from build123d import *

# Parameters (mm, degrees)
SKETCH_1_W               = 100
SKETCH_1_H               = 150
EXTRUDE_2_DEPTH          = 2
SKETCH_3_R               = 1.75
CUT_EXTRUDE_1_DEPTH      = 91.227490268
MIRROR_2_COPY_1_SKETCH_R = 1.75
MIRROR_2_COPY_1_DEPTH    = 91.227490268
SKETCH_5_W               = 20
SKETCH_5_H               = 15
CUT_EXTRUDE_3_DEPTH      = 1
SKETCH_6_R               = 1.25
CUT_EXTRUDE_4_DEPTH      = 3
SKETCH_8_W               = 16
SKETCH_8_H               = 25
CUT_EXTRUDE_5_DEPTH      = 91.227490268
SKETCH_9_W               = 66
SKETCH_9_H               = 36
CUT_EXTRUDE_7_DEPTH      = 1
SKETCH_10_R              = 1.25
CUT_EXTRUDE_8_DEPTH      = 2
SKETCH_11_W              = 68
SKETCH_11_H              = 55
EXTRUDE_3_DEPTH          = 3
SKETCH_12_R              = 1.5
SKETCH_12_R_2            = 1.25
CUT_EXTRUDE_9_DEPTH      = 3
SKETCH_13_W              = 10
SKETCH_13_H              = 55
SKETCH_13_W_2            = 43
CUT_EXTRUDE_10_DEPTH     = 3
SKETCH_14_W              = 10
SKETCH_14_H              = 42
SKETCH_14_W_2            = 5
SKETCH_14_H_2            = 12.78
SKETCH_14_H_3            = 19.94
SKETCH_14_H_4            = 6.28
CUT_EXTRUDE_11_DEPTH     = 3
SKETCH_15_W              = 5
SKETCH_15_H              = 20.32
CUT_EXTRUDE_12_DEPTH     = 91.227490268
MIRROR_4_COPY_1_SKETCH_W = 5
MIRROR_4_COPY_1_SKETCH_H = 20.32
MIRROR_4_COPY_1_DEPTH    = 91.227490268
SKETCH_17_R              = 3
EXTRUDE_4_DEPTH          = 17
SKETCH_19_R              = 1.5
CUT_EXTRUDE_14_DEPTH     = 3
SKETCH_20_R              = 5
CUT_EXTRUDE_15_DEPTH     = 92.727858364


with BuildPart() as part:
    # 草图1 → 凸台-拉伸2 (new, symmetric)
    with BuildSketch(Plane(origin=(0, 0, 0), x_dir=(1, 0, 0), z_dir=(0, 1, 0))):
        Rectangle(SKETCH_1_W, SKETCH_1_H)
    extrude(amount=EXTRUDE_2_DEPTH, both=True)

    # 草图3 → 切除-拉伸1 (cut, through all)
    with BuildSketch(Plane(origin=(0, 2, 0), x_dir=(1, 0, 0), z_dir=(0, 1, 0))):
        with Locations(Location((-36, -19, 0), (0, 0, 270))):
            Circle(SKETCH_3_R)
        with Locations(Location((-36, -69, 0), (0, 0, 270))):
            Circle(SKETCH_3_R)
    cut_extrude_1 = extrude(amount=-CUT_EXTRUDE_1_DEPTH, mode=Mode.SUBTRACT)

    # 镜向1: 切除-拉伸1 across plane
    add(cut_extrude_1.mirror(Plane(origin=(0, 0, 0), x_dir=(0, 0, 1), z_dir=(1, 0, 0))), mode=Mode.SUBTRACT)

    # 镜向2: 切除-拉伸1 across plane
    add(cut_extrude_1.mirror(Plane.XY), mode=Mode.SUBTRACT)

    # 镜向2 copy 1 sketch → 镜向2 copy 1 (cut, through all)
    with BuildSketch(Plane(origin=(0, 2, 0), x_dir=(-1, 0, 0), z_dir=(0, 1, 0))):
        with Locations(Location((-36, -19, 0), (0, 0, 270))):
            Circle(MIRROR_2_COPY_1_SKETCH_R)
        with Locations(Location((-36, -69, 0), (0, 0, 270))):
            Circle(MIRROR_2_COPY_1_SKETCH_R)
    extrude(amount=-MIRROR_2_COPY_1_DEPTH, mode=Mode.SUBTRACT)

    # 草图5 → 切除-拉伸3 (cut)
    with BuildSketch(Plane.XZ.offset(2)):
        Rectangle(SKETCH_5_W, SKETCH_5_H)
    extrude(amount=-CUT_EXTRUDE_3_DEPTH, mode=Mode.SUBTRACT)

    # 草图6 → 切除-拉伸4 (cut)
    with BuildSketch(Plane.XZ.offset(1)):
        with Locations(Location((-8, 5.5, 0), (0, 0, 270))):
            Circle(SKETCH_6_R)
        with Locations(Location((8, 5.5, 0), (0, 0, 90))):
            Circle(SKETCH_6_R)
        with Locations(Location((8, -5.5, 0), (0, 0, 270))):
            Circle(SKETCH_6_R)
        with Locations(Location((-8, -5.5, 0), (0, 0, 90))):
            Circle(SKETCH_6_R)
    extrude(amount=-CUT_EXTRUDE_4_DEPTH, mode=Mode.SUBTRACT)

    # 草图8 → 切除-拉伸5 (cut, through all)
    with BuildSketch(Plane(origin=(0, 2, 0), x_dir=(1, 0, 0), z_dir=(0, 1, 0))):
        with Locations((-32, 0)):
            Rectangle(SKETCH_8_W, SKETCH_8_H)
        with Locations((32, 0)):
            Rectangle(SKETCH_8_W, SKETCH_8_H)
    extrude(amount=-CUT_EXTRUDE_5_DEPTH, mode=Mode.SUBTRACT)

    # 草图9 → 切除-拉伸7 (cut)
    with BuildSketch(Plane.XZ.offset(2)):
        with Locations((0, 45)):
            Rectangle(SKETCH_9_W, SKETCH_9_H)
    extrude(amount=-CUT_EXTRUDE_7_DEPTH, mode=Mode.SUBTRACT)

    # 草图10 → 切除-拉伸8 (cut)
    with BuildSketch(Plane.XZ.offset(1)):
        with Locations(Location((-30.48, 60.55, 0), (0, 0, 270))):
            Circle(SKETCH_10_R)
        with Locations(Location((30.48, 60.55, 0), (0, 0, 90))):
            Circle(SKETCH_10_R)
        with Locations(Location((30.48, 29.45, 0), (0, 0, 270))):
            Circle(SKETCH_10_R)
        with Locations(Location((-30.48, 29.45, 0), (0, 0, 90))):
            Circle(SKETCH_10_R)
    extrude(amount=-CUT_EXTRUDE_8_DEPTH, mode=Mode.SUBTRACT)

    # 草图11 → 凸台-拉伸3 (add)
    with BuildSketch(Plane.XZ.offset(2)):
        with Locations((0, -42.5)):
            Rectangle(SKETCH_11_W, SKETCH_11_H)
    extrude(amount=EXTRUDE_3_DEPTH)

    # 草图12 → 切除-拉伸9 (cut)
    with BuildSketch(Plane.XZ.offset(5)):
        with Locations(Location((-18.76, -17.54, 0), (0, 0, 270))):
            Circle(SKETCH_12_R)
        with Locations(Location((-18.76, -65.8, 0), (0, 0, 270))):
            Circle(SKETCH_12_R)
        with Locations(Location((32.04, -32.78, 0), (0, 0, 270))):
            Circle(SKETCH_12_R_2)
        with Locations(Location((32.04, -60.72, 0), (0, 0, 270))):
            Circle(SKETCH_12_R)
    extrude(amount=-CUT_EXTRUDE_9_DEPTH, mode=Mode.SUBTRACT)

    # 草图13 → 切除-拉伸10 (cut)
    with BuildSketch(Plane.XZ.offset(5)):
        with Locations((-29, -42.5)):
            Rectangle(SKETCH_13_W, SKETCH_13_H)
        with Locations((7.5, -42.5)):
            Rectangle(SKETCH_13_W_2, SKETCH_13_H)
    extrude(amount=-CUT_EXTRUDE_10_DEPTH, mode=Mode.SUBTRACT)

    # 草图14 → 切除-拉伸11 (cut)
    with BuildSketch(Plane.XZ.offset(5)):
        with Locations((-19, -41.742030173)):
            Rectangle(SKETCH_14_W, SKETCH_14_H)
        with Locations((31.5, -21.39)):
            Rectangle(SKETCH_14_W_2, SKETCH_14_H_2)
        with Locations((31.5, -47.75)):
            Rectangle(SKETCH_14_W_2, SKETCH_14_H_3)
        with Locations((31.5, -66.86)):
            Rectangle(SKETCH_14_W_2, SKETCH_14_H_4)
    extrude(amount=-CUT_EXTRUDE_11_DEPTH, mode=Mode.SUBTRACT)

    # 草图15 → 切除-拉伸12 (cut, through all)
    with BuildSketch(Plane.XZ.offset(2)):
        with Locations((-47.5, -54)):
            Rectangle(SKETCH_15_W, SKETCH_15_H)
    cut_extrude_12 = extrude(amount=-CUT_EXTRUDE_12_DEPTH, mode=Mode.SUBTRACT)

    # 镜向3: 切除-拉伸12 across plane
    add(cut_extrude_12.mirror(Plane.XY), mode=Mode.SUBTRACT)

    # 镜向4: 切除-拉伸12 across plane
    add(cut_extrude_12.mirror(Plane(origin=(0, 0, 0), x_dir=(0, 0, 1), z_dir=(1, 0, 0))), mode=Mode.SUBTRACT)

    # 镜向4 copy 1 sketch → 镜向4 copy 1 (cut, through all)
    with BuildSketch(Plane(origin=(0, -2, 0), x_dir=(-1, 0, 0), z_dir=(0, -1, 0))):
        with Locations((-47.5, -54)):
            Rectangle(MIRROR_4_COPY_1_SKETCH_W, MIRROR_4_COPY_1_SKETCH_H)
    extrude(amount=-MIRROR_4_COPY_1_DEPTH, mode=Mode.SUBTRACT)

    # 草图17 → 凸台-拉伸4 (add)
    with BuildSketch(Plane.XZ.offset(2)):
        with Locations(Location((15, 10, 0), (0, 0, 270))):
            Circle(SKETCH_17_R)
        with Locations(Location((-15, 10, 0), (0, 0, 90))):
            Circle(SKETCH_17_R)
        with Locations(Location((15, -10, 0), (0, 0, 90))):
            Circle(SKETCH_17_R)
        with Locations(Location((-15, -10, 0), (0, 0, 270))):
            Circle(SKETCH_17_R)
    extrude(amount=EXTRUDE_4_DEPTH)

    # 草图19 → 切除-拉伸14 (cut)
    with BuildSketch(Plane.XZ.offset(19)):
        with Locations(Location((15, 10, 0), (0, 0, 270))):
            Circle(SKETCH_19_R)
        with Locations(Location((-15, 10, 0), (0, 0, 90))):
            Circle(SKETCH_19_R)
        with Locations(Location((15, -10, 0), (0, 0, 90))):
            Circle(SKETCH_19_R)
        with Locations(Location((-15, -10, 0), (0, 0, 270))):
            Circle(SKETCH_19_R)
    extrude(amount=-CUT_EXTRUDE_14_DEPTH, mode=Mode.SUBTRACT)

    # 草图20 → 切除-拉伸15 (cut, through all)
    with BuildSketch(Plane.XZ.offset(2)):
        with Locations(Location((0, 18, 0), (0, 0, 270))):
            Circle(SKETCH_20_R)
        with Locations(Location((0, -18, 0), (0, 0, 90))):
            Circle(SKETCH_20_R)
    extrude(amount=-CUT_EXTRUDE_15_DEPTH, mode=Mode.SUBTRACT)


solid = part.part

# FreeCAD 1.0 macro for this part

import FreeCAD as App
import Part
import Sketcher
from FreeCAD import Vector
Q = App.Units.Quantity


def add_polygon(sketch, points):
    """Adds a closed chain of lines whose ends are joined by coincident constraints."""
    first, n = sketch.GeometryCount, len(points)
    for a, b in zip(points, points[1:] + points[:1]):
        sketch.addGeometry(Part.LineSegment(App.Vector(*a, 0), App.Vector(*b, 0)), False)
    for i in range(n):
        sketch.addConstraint(Sketcher.Constraint("Coincident", first + i, 2, first + (i + 1) % n, 1))

doc = App.newDocument("Part")
body = doc.addObject("PartDesign::Body", "Body")

sketch1 = doc.addObject("Sketcher::SketchObject", "Sketch")
body.addObject(sketch1)
sketch1.AttachmentSupport = (doc.XZ_Plane, [""])
sketch1.MapMode = "FlatFace"
add_polygon(sketch1, [(-50, -75), (-50, 75), (50, 75), (50, -75)])
sketch1.addConstraint(Sketcher.Constraint("Vertical", 0))
sketch1.addConstraint(Sketcher.Constraint("Horizontal", 1))
sketch1.addConstraint(Sketcher.Constraint("Vertical", 2))
sketch1.addConstraint(Sketcher.Constraint("Horizontal", 3))
sketch1.addConstraint(Sketcher.Constraint("Symmetric", 0, 2, 2, 2, -1, 1))
sketch1.addConstraint(Sketcher.Constraint("DistanceX", 1, 1, 1, 2, Q("100 mm")))
sketch1.addConstraint(Sketcher.Constraint("DistanceY", 0, 1, 0, 2, Q("150 mm")))
pad1 = doc.addObject("PartDesign::Pad", "Pad")
body.addObject(pad1)
pad1.Profile = sketch1
pad1.Length = 4
pad1.Midplane = True

sketch2 = doc.addObject("Sketcher::SketchObject", "Sketch001")
body.addObject(sketch2)
sketch2.AttachmentSupport = (doc.XZ_Plane, [""])
sketch2.MapMode = "FlatFace"
sketch2.AttachmentOffset = App.Placement(Vector(0, 0, -2), App.Rotation())
sketch2.addGeometry(Part.Circle(Vector(-36, 19, 0), Vector(0, 0, 1), 1.75), False)
sketch2.addGeometry(Part.Circle(Vector(-36, 69, 0), Vector(0, 0, 1), 1.75), False)
sketch2.addConstraint(Sketcher.Constraint("Equal", 0, 1))
sketch2.addConstraint(Sketcher.Constraint("Vertical", 0, 3, 1, 3))
sketch2.addConstraint(Sketcher.Constraint("Diameter", 0, Q("3.5 mm")))
sketch2.addConstraint(Sketcher.Constraint("DistanceX", 0, 3, -1, 1, Q("36 mm")))
sketch2.addConstraint(Sketcher.Constraint("DistanceY", -1, 1, 0, 3, Q("19 mm")))
sketch2.addConstraint(Sketcher.Constraint("DistanceY", -1, 1, 1, 3, Q("69 mm")))
pocket1 = doc.addObject("PartDesign::Pocket", "Pocket")
body.addObject(pocket1)
pocket1.Profile = sketch2
pocket1.Type = "ThroughAll"
pocket1.Reversed = True
doc.recompute()

mirrored = doc.addObject("PartDesign::Mirrored", "Mirrored")
body.addObject(mirrored)
mirrored.Originals = [pocket1]
mirrored.MirrorPlane = (doc.YZ_Plane, [""])
body.Tip = mirrored
doc.recompute()

mirrored2 = doc.addObject("PartDesign::Mirrored", "Mirrored001")
body.addObject(mirrored2)
mirrored2.Originals = [pocket1]
mirrored2.MirrorPlane = (doc.XY_Plane, [""])
body.Tip = mirrored2

sketch3 = doc.addObject("Sketcher::SketchObject", "Sketch002")
body.addObject(sketch3)
sketch3.AttachmentSupport = (doc.XZ_Plane, [""])
sketch3.MapMode = "FlatFace"
sketch3.AttachmentOffset = App.Placement(Vector(0, 0, -2), App.Rotation())
sketch3.addGeometry(Part.Circle(Vector(36, -19, 0), Vector(0, 0, 1), 1.75), False)
sketch3.addGeometry(Part.Circle(Vector(36, -69, 0), Vector(0, 0, 1), 1.75), False)
sketch3.addConstraint(Sketcher.Constraint("Equal", 0, 1))
sketch3.addConstraint(Sketcher.Constraint("Vertical", 0, 3, 1, 3))
sketch3.addConstraint(Sketcher.Constraint("Diameter", 0, Q("3.5 mm")))
sketch3.addConstraint(Sketcher.Constraint("DistanceX", -1, 1, 0, 3, Q("36 mm")))
sketch3.addConstraint(Sketcher.Constraint("DistanceY", 0, 3, -1, 1, Q("19 mm")))
sketch3.addConstraint(Sketcher.Constraint("DistanceY", 1, 3, -1, 1, Q("69 mm")))
pocket2 = doc.addObject("PartDesign::Pocket", "Pocket001")
body.addObject(pocket2)
pocket2.Profile = sketch3
pocket2.Type = "ThroughAll"
pocket2.Reversed = True

sketch4 = doc.addObject("Sketcher::SketchObject", "Sketch003")
body.addObject(sketch4)
sketch4.AttachmentSupport = (doc.XZ_Plane, [""])
sketch4.MapMode = "FlatFace"
sketch4.AttachmentOffset = App.Placement(Vector(0, 0, 2), App.Rotation())
add_polygon(sketch4, [(-10, 7.5), (-10, -7.5), (10, -7.5), (10, 7.5)])
sketch4.addConstraint(Sketcher.Constraint("Vertical", 0))
sketch4.addConstraint(Sketcher.Constraint("Horizontal", 1))
sketch4.addConstraint(Sketcher.Constraint("Vertical", 2))
sketch4.addConstraint(Sketcher.Constraint("Horizontal", 3))
sketch4.addConstraint(Sketcher.Constraint("Symmetric", 0, 2, 2, 2, -1, 1))
sketch4.addConstraint(Sketcher.Constraint("DistanceX", 1, 1, 1, 2, Q("20 mm")))
sketch4.addConstraint(Sketcher.Constraint("DistanceY", 0, 2, 0, 1, Q("15 mm")))
pocket3 = doc.addObject("PartDesign::Pocket", "Pocket002")
body.addObject(pocket3)
pocket3.Profile = sketch4
pocket3.Length = 1

sketch5 = doc.addObject("Sketcher::SketchObject", "Sketch004")
body.addObject(sketch5)
sketch5.AttachmentSupport = (doc.XZ_Plane, [""])
sketch5.MapMode = "FlatFace"
sketch5.AttachmentOffset = App.Placement(Vector(0, 0, 1), App.Rotation())
sketch5.addGeometry(Part.Circle(Vector(-8, 5.5, 0), Vector(0, 0, 1), 1.25), False)
sketch5.addGeometry(Part.Circle(Vector(8, 5.5, 0), Vector(0, 0, 1), 1.25), False)
sketch5.addGeometry(Part.Circle(Vector(8, -5.5, 0), Vector(0, 0, 1), 1.25), False)
sketch5.addGeometry(Part.Circle(Vector(-8, -5.5, 0), Vector(0, 0, 1), 1.25), False)
sketch5.addConstraint(Sketcher.Constraint("Equal", 0, 1))
sketch5.addConstraint(Sketcher.Constraint("Equal", 1, 2))
sketch5.addConstraint(Sketcher.Constraint("Equal", 2, 3))
sketch5.addConstraint(Sketcher.Constraint("Symmetric", 0, 3, 2, 3, -1, 1))
sketch5.addConstraint(Sketcher.Constraint("Symmetric", 1, 3, 3, 3, -1, 1))
sketch5.addConstraint(Sketcher.Constraint("Symmetric", 0, 3, 1, 3, -2))
sketch5.addConstraint(Sketcher.Constraint("Diameter", 0, Q("2.5 mm")))
sketch5.addConstraint(Sketcher.Constraint("DistanceX", 0, 3, -1, 1, Q("8 mm")))
sketch5.addConstraint(Sketcher.Constraint("DistanceY", 2, 3, 1, 3, Q("11 mm")))
pocket4 = doc.addObject("PartDesign::Pocket", "Pocket003")
body.addObject(pocket4)
pocket4.Profile = sketch5
pocket4.Length = 3

sketch6 = doc.addObject("Sketcher::SketchObject", "Sketch005")
body.addObject(sketch6)
sketch6.AttachmentSupport = (doc.XZ_Plane, [""])
sketch6.MapMode = "FlatFace"
sketch6.AttachmentOffset = App.Placement(Vector(0, 0, -2), App.Rotation())
add_polygon(sketch6, [(-40, -12.5), (-40, 12.5), (-24, 12.5), (-24, -12.5)])
add_polygon(sketch6, [(24, -12.5), (24, 12.5), (40, 12.5), (40, -12.5)])
sketch6.addConstraint(Sketcher.Constraint("Vertical", 0))
sketch6.addConstraint(Sketcher.Constraint("Horizontal", 1))
sketch6.addConstraint(Sketcher.Constraint("Vertical", 2))
sketch6.addConstraint(Sketcher.Constraint("Horizontal", 3))
sketch6.addConstraint(Sketcher.Constraint("Vertical", 4))
sketch6.addConstraint(Sketcher.Constraint("Horizontal", 5))
sketch6.addConstraint(Sketcher.Constraint("Vertical", 6))
sketch6.addConstraint(Sketcher.Constraint("Horizontal", 7))
sketch6.addConstraint(Sketcher.Constraint("Symmetric", 2, 2, 4, 2, -1, 1))
sketch6.addConstraint(Sketcher.Constraint("Symmetric", 0, 2, 6, 2, -1, 1))
sketch6.addConstraint(Sketcher.Constraint("Horizontal", 1, 2, 4, 2))
sketch6.addConstraint(Sketcher.Constraint("DistanceX", 1, 1, 1, 2, Q("16 mm")))
sketch6.addConstraint(Sketcher.Constraint("DistanceY", 0, 1, 0, 2, Q("25 mm")))
sketch6.addConstraint(Sketcher.Constraint("DistanceX", 0, 2, -1, 1, Q("40 mm")))
pocket5 = doc.addObject("PartDesign::Pocket", "Pocket004")
body.addObject(pocket5)
pocket5.Profile = sketch6
pocket5.Type = "ThroughAll"
pocket5.Reversed = True

sketch7 = doc.addObject("Sketcher::SketchObject", "Sketch006")
body.addObject(sketch7)
sketch7.AttachmentSupport = (doc.XZ_Plane, [""])
sketch7.MapMode = "FlatFace"
sketch7.AttachmentOffset = App.Placement(Vector(0, 0, 2), App.Rotation())
add_polygon(sketch7, [(-33, 63), (-33, 27), (33, 27), (33, 63)])
sketch7.addConstraint(Sketcher.Constraint("Vertical", 0))
sketch7.addConstraint(Sketcher.Constraint("Horizontal", 1))
sketch7.addConstraint(Sketcher.Constraint("Vertical", 2))
sketch7.addConstraint(Sketcher.Constraint("Horizontal", 3))
sketch7.addConstraint(Sketcher.Constraint("DistanceX", 1, 1, 1, 2, Q("66 mm")))
sketch7.addConstraint(Sketcher.Constraint("DistanceY", 0, 2, 0, 1, Q("36 mm")))
sketch7.addConstraint(Sketcher.Constraint("DistanceX", 0, 2, -1, 1, Q("33 mm")))
sketch7.addConstraint(Sketcher.Constraint("DistanceY", -1, 1, 0, 2, Q("27 mm")))
pocket6 = doc.addObject("PartDesign::Pocket", "Pocket005")
body.addObject(pocket6)
pocket6.Profile = sketch7
pocket6.Length = 1

sketch8 = doc.addObject("Sketcher::SketchObject", "Sketch007")
body.addObject(sketch8)
sketch8.AttachmentSupport = (doc.XZ_Plane, [""])
sketch8.MapMode = "FlatFace"
sketch8.AttachmentOffset = App.Placement(Vector(0, 0, 1), App.Rotation())
sketch8.addGeometry(Part.Circle(Vector(-30.48, 60.55, 0), Vector(0, 0, 1), 1.25), False)
sketch8.addGeometry(Part.Circle(Vector(30.48, 60.55, 0), Vector(0, 0, 1), 1.25), False)
sketch8.addGeometry(Part.Circle(Vector(30.48, 29.45, 0), Vector(0, 0, 1), 1.25), False)
sketch8.addGeometry(Part.Circle(Vector(-30.48, 29.45, 0), Vector(0, 0, 1), 1.25), False)
sketch8.addConstraint(Sketcher.Constraint("Equal", 0, 1))
sketch8.addConstraint(Sketcher.Constraint("Equal", 1, 2))
sketch8.addConstraint(Sketcher.Constraint("Equal", 2, 3))
sketch8.addConstraint(Sketcher.Constraint("Symmetric", 0, 3, 1, 3, -2))
sketch8.addConstraint(Sketcher.Constraint("Symmetric", 2, 3, 3, 3, -2))
sketch8.addConstraint(Sketcher.Constraint("Vertical", 1, 3, 2, 3))
sketch8.addConstraint(Sketcher.Constraint("Diameter", 0, Q("2.5 mm")))
sketch8.addConstraint(Sketcher.Constraint("DistanceY", 2, 3, 1, 3, Q("31.1 mm")))
sketch8.addConstraint(Sketcher.Constraint("DistanceX", 0, 3, -1, 1, Q("30.48 mm")))
sketch8.addConstraint(Sketcher.Constraint("DistanceY", -1, 1, 0, 3, Q("60.55 mm")))
pocket7 = doc.addObject("PartDesign::Pocket", "Pocket006")
body.addObject(pocket7)
pocket7.Profile = sketch8
pocket7.Length = 2

sketch9 = doc.addObject("Sketcher::SketchObject", "Sketch008")
body.addObject(sketch9)
sketch9.AttachmentSupport = (doc.XZ_Plane, [""])
sketch9.MapMode = "FlatFace"
sketch9.AttachmentOffset = App.Placement(Vector(0, 0, 2), App.Rotation())
add_polygon(sketch9, [(-34, -15), (-34, -70), (34, -70), (34, -15)])
sketch9.addConstraint(Sketcher.Constraint("Vertical", 0))
sketch9.addConstraint(Sketcher.Constraint("Horizontal", 1))
sketch9.addConstraint(Sketcher.Constraint("Vertical", 2))
sketch9.addConstraint(Sketcher.Constraint("Horizontal", 3))
sketch9.addConstraint(Sketcher.Constraint("DistanceX", 1, 1, 1, 2, Q("68 mm")))
sketch9.addConstraint(Sketcher.Constraint("DistanceY", 0, 2, 0, 1, Q("55 mm")))
sketch9.addConstraint(Sketcher.Constraint("DistanceX", 0, 2, -1, 1, Q("34 mm")))
sketch9.addConstraint(Sketcher.Constraint("DistanceY", 0, 2, -1, 1, Q("70 mm")))
pad2 = doc.addObject("PartDesign::Pad", "Pad001")
body.addObject(pad2)
pad2.Profile = sketch9
pad2.Length = 3

sketch10 = doc.addObject("Sketcher::SketchObject", "Sketch009")
body.addObject(sketch10)
sketch10.AttachmentSupport = (doc.XZ_Plane, [""])
sketch10.MapMode = "FlatFace"
sketch10.AttachmentOffset = App.Placement(Vector(0, 0, 5), App.Rotation())
sketch10.addGeometry(Part.Circle(Vector(-18.76, -17.54, 0), Vector(0, 0, 1), 1.5), False)
sketch10.addGeometry(Part.Circle(Vector(-18.76, -65.8, 0), Vector(0, 0, 1), 1.5), False)
sketch10.addGeometry(Part.Circle(Vector(32.04, -32.78, 0), Vector(0, 0, 1), 1.25), False)
sketch10.addGeometry(Part.Circle(Vector(32.04, -60.72, 0), Vector(0, 0, 1), 1.5), False)
sketch10.addConstraint(Sketcher.Constraint("Equal", 0, 1))
sketch10.addConstraint(Sketcher.Constraint("Equal", 1, 3))
sketch10.addConstraint(Sketcher.Constraint("Vertical", 0, 3, 1, 3))
sketch10.addConstraint(Sketcher.Constraint("Vertical", 2, 3, 3, 3))
sketch10.addConstraint(Sketcher.Constraint("Diameter", 0, Q("3 mm")))
sketch10.addConstraint(Sketcher.Constraint("Diameter", 2, Q("2.5 mm")))
sketch10.addConstraint(Sketcher.Constraint("DistanceY", 1, 3, -1, 1, Q("65.8 mm")))
sketch10.addConstraint(Sketcher.Constraint("DistanceX", 0, 3, 2, 3, Q("50.8 mm")))
sketch10.addConstraint(Sketcher.Constraint("DistanceX", 0, 3, -1, 1, Q("18.76 mm")))
sketch10.addConstraint(Sketcher.Constraint("DistanceY", 0, 3, -1, 1, Q("17.54 mm")))
sketch10.addConstraint(Sketcher.Constraint("DistanceY", 2, 3, -1, 1, Q("32.78 mm")))
sketch10.addConstraint(Sketcher.Constraint("DistanceY", 3, 3, -1, 1, Q("60.72 mm")))
pocket8 = doc.addObject("PartDesign::Pocket", "Pocket007")
body.addObject(pocket8)
pocket8.Profile = sketch10
pocket8.Length = 3

sketch11 = doc.addObject("Sketcher::SketchObject", "Sketch010")
body.addObject(sketch11)
sketch11.AttachmentSupport = (doc.XZ_Plane, [""])
sketch11.MapMode = "FlatFace"
sketch11.AttachmentOffset = App.Placement(Vector(0, 0, 5), App.Rotation())
add_polygon(sketch11, [(-34, -15), (-34, -70), (-24, -70), (-24, -15)])
add_polygon(sketch11, [(-14, -15), (-14, -70), (29, -70), (29, -15)])
sketch11.addConstraint(Sketcher.Constraint("Vertical", 0))
sketch11.addConstraint(Sketcher.Constraint("Horizontal", 1))
sketch11.addConstraint(Sketcher.Constraint("Vertical", 2))
sketch11.addConstraint(Sketcher.Constraint("Horizontal", 3))
sketch11.addConstraint(Sketcher.Constraint("Vertical", 4))
sketch11.addConstraint(Sketcher.Constraint("Horizontal", 5))
sketch11.addConstraint(Sketcher.Constraint("Vertical", 6))
sketch11.addConstraint(Sketcher.Constraint("Horizontal", 7))
sketch11.addConstraint(Sketcher.Constraint("Horizontal", 1, 2, 4, 2))
sketch11.addConstraint(Sketcher.Constraint("Horizontal", 3, 2, 6, 2))
sketch11.addConstraint(Sketcher.Constraint("DistanceX", 1, 1, 1, 2, Q("10 mm")))
sketch11.addConstraint(Sketcher.Constraint("DistanceX", 5, 1, 5, 2, Q("43 mm")))
sketch11.addConstraint(Sketcher.Constraint("DistanceY", 0, 2, 0, 1, Q("55 mm")))
sketch11.addConstraint(Sketcher.Constraint("DistanceX", 0, 2, -1, 1, Q("34 mm")))
sketch11.addConstraint(Sketcher.Constraint("DistanceY", 0, 2, -1, 1, Q("70 mm")))
sketch11.addConstraint(Sketcher.Constraint("DistanceX", 4, 2, -1, 1, Q("14 mm")))
pocket9 = doc.addObject("PartDesign::Pocket", "Pocket008")
body.addObject(pocket9)
pocket9.Profile = sketch11
pocket9.Length = 3

sketch12 = doc.addObject("Sketcher::SketchObject", "Sketch011")
body.addObject(sketch12)
sketch12.AttachmentSupport = (doc.XZ_Plane, [""])
sketch12.MapMode = "FlatFace"
sketch12.AttachmentOffset = App.Placement(Vector(0, 0, 5), App.Rotation())
add_polygon(sketch12, [(-24, -20.74203), (-24, -62.74203), (-14, -62.74203), (-14, -20.74203)])
add_polygon(sketch12, [(29, -15), (29, -27.78), (34, -27.78), (34, -15)])
add_polygon(sketch12, [(29, -37.78), (29, -57.72), (34, -57.72), (34, -37.78)])
add_polygon(sketch12, [(29, -63.72), (29, -70), (34, -70), (34, -63.72)])
sketch12.addConstraint(Sketcher.Constraint("Vertical", 0))
sketch12.addConstraint(Sketcher.Constraint("Horizontal", 1))
sketch12.addConstraint(Sketcher.Constraint("Vertical", 2))
sketch12.addConstraint(Sketcher.Constraint("Horizontal", 3))
sketch12.addConstraint(Sketcher.Constraint("Vertical", 4))
sketch12.addConstraint(Sketcher.Constraint("Horizontal", 5))
sketch12.addConstraint(Sketcher.Constraint("Vertical", 6))
sketch12.addConstraint(Sketcher.Constraint("Horizontal", 7))
sketch12.addConstraint(Sketcher.Constraint("Vertical", 8))
sketch12.addConstraint(Sketcher.Constraint("Horizontal", 9))
sketch12.addConstraint(Sketcher.Constraint("Vertical", 10))
sketch12.addConstraint(Sketcher.Constraint("Horizontal", 11))
sketch12.addConstraint(Sketcher.Constraint("Vertical", 12))
sketch12.addConstraint(Sketcher.Constraint("Horizontal", 13))
sketch12.addConstraint(Sketcher.Constraint("Vertical", 14))
sketch12.addConstraint(Sketcher.Constraint("Horizontal", 15))
sketch12.addConstraint(Sketcher.Constraint("Vertical", 7, 2, 8, 2))
sketch12.addConstraint(Sketcher.Constraint("Vertical", 6, 2, 9, 2))
sketch12.addConstraint(Sketcher.Constraint("Vertical", 11, 2, 12, 2))
sketch12.addConstraint(Sketcher.Constraint("Vertical", 10, 2, 13, 2))
sketch12.addConstraint(Sketcher.Constraint("DistanceX", 1, 1, 1, 2, Q("10 mm")))
sketch12.addConstraint(Sketcher.Constraint("DistanceX", 5, 1, 5, 2, Q("5 mm")))
sketch12.addConstraint(Sketcher.Constraint("DistanceY", 0, 2, 0, 1, Q("42 mm")))
sketch12.addConstraint(Sketcher.Constraint("DistanceX", 0, 2, -1, 1, Q("24 mm")))
sketch12.addConstraint(Sketcher.Constraint("DistanceX", -1, 1, 4, 2, Q("29 mm")))
sketch12.addConstraint(Sketcher.Constraint("DistanceY", 6, 2, -1, 1, Q("15 mm")))
sketch12.addConstraint(Sketcher.Constraint("DistanceY", 12, 2, -1, 1, Q("70 mm")))
sketch12.addConstraint(Sketcher.Constraint("DistanceY", 10, 2, 5, 2, Q("10 mm")))
sketch12.addConstraint(Sketcher.Constraint("DistanceY", 14, 2, 9, 2, Q("6 mm")))
sketch12.addConstraint(Sketcher.Constraint("DistanceY", 4, 2, 4, 1, Q("12.78 mm")))
sketch12.addConstraint(Sketcher.Constraint("DistanceY", 8, 2, 8, 1, Q("19.94 mm")))
sketch12.addConstraint(Sketcher.Constraint("DistanceY", 0, 2, -1, 1, Q("62.74203 mm")))
pocket10 = doc.addObject("PartDesign::Pocket", "Pocket009")
body.addObject(pocket10)
pocket10.Profile = sketch12
pocket10.Length = 3

sketch13 = doc.addObject("Sketcher::SketchObject", "Sketch012")
body.addObject(sketch13)
sketch13.AttachmentSupport = (doc.XZ_Plane, [""])
sketch13.MapMode = "FlatFace"
sketch13.AttachmentOffset = App.Placement(Vector(0, 0, 2), App.Rotation())
add_polygon(sketch13, [(-50, -43.84), (-50, -64.16), (-45, -64.16), (-45, -43.84)])
sketch13.addConstraint(Sketcher.Constraint("Vertical", 0))
sketch13.addConstraint(Sketcher.Constraint("Horizontal", 1))
sketch13.addConstraint(Sketcher.Constraint("Vertical", 2))
sketch13.addConstraint(Sketcher.Constraint("Horizontal", 3))
sketch13.addConstraint(Sketcher.Constraint("DistanceX", 1, 1, 1, 2, Q("5 mm")))
sketch13.addConstraint(Sketcher.Constraint("DistanceX", 0, 2, -1, 1, Q("50 mm")))
sketch13.addConstraint(Sketcher.Constraint("DistanceY", 0, 2, 0, 1, Q("20.32 mm")))
sketch13.addConstraint(Sketcher.Constraint("DistanceY", 0, 2, -1, 1, Q("64.16 mm")))
pocket11 = doc.addObject("PartDesign::Pocket", "Pocket010")
body.addObject(pocket11)
pocket11.Profile = sketch13
pocket11.Type = "ThroughAll"
doc.recompute()

mirrored3 = doc.addObject("PartDesign::Mirrored", "Mirrored002")
body.addObject(mirrored3)
mirrored3.Originals = [pocket11]
mirrored3.MirrorPlane = (doc.XY_Plane, [""])
body.Tip = mirrored3
doc.recompute()

mirrored4 = doc.addObject("PartDesign::Mirrored", "Mirrored003")
body.addObject(mirrored4)
mirrored4.Originals = [pocket11]
mirrored4.MirrorPlane = (doc.YZ_Plane, [""])
body.Tip = mirrored4

sketch14 = doc.addObject("Sketcher::SketchObject", "Sketch013")
body.addObject(sketch14)
sketch14.AttachmentSupport = (doc.XZ_Plane, [""])
sketch14.MapMode = "FlatFace"
sketch14.AttachmentOffset = App.Placement(Vector(0, 0, 2), App.Rotation())
add_polygon(sketch14, [(50, 43.84), (50, 64.16), (45, 64.16), (45, 43.84)])
sketch14.addConstraint(Sketcher.Constraint("Vertical", 0))
sketch14.addConstraint(Sketcher.Constraint("Horizontal", 1))
sketch14.addConstraint(Sketcher.Constraint("Vertical", 2))
sketch14.addConstraint(Sketcher.Constraint("Horizontal", 3))
sketch14.addConstraint(Sketcher.Constraint("DistanceX", 1, 2, 1, 1, Q("5 mm")))
sketch14.addConstraint(Sketcher.Constraint("DistanceX", -1, 1, 0, 2, Q("50 mm")))
sketch14.addConstraint(Sketcher.Constraint("DistanceY", 0, 1, 0, 2, Q("20.32 mm")))
sketch14.addConstraint(Sketcher.Constraint("DistanceY", -1, 1, 0, 2, Q("64.16 mm")))
pocket12 = doc.addObject("PartDesign::Pocket", "Pocket011")
body.addObject(pocket12)
pocket12.Profile = sketch14
pocket12.Type = "ThroughAll"

sketch15 = doc.addObject("Sketcher::SketchObject", "Sketch014")
body.addObject(sketch15)
sketch15.AttachmentSupport = (doc.XZ_Plane, [""])
sketch15.MapMode = "FlatFace"
sketch15.AttachmentOffset = App.Placement(Vector(0, 0, 2), App.Rotation())
sketch15.addGeometry(Part.Circle(Vector(15, 10, 0), Vector(0, 0, 1), 3), False)
sketch15.addGeometry(Part.Circle(Vector(-15, 10, 0), Vector(0, 0, 1), 3), False)
sketch15.addGeometry(Part.Circle(Vector(15, -10, 0), Vector(0, 0, 1), 3), False)
sketch15.addGeometry(Part.Circle(Vector(-15, -10, 0), Vector(0, 0, 1), 3), False)
sketch15.addConstraint(Sketcher.Constraint("Equal", 0, 1))
sketch15.addConstraint(Sketcher.Constraint("Equal", 1, 2))
sketch15.addConstraint(Sketcher.Constraint("Equal", 2, 3))
sketch15.addConstraint(Sketcher.Constraint("Symmetric", 1, 3, 2, 3, -1, 1))
sketch15.addConstraint(Sketcher.Constraint("Symmetric", 0, 3, 3, 3, -1, 1))
sketch15.addConstraint(Sketcher.Constraint("Symmetric", 0, 3, 1, 3, -2))
sketch15.addConstraint(Sketcher.Constraint("Diameter", 0, Q("6 mm")))
sketch15.addConstraint(Sketcher.Constraint("DistanceX", -1, 1, 0, 3, Q("15 mm")))
sketch15.addConstraint(Sketcher.Constraint("DistanceY", -1, 1, 0, 3, Q("10 mm")))
pad3 = doc.addObject("PartDesign::Pad", "Pad002")
body.addObject(pad3)
pad3.Profile = sketch15
pad3.Length = 17

sketch16 = doc.addObject("Sketcher::SketchObject", "Sketch015")
body.addObject(sketch16)
sketch16.AttachmentSupport = (doc.XZ_Plane, [""])
sketch16.MapMode = "FlatFace"
sketch16.AttachmentOffset = App.Placement(Vector(0, 0, 19), App.Rotation())
sketch16.addGeometry(Part.Circle(Vector(15, 10, 0), Vector(0, 0, 1), 1.5), False)
sketch16.addGeometry(Part.Circle(Vector(-15, 10, 0), Vector(0, 0, 1), 1.5), False)
sketch16.addGeometry(Part.Circle(Vector(15, -10, 0), Vector(0, 0, 1), 1.5), False)
sketch16.addGeometry(Part.Circle(Vector(-15, -10, 0), Vector(0, 0, 1), 1.5), False)
sketch16.addConstraint(Sketcher.Constraint("Equal", 0, 1))
sketch16.addConstraint(Sketcher.Constraint("Equal", 1, 2))
sketch16.addConstraint(Sketcher.Constraint("Equal", 2, 3))
sketch16.addConstraint(Sketcher.Constraint("Symmetric", 1, 3, 2, 3, -1, 1))
sketch16.addConstraint(Sketcher.Constraint("Symmetric", 0, 3, 3, 3, -1, 1))
sketch16.addConstraint(Sketcher.Constraint("Symmetric", 0, 3, 1, 3, -2))
sketch16.addConstraint(Sketcher.Constraint("Diameter", 0, Q("3 mm")))
sketch16.addConstraint(Sketcher.Constraint("DistanceX", -1, 1, 0, 3, Q("15 mm")))
sketch16.addConstraint(Sketcher.Constraint("DistanceY", -1, 1, 0, 3, Q("10 mm")))
pocket13 = doc.addObject("PartDesign::Pocket", "Pocket012")
body.addObject(pocket13)
pocket13.Profile = sketch16
pocket13.Length = 3

sketch17 = doc.addObject("Sketcher::SketchObject", "Sketch016")
body.addObject(sketch17)
sketch17.AttachmentSupport = (doc.XZ_Plane, [""])
sketch17.MapMode = "FlatFace"
sketch17.AttachmentOffset = App.Placement(Vector(0, 0, 2), App.Rotation())
sketch17.addGeometry(Part.Circle(Vector(0, 18, 0), Vector(0, 0, 1), 5), False)
sketch17.addGeometry(Part.Circle(Vector(0, -18, 0), Vector(0, 0, 1), 5), False)
sketch17.addConstraint(Sketcher.Constraint("Equal", 0, 1))
sketch17.addConstraint(Sketcher.Constraint("Symmetric", 0, 3, 1, 3, -1, 1))
sketch17.addConstraint(Sketcher.Constraint("PointOnObject", 0, 3, -2))
sketch17.addConstraint(Sketcher.Constraint("Diameter", 0, Q("10 mm")))
sketch17.addConstraint(Sketcher.Constraint("DistanceY", -1, 1, 0, 3, Q("18 mm")))
pocket14 = doc.addObject("PartDesign::Pocket", "Pocket013")
body.addObject(pocket14)
pocket14.Profile = sketch17
pocket14.Type = "ThroughAll"

doc.recompute()
